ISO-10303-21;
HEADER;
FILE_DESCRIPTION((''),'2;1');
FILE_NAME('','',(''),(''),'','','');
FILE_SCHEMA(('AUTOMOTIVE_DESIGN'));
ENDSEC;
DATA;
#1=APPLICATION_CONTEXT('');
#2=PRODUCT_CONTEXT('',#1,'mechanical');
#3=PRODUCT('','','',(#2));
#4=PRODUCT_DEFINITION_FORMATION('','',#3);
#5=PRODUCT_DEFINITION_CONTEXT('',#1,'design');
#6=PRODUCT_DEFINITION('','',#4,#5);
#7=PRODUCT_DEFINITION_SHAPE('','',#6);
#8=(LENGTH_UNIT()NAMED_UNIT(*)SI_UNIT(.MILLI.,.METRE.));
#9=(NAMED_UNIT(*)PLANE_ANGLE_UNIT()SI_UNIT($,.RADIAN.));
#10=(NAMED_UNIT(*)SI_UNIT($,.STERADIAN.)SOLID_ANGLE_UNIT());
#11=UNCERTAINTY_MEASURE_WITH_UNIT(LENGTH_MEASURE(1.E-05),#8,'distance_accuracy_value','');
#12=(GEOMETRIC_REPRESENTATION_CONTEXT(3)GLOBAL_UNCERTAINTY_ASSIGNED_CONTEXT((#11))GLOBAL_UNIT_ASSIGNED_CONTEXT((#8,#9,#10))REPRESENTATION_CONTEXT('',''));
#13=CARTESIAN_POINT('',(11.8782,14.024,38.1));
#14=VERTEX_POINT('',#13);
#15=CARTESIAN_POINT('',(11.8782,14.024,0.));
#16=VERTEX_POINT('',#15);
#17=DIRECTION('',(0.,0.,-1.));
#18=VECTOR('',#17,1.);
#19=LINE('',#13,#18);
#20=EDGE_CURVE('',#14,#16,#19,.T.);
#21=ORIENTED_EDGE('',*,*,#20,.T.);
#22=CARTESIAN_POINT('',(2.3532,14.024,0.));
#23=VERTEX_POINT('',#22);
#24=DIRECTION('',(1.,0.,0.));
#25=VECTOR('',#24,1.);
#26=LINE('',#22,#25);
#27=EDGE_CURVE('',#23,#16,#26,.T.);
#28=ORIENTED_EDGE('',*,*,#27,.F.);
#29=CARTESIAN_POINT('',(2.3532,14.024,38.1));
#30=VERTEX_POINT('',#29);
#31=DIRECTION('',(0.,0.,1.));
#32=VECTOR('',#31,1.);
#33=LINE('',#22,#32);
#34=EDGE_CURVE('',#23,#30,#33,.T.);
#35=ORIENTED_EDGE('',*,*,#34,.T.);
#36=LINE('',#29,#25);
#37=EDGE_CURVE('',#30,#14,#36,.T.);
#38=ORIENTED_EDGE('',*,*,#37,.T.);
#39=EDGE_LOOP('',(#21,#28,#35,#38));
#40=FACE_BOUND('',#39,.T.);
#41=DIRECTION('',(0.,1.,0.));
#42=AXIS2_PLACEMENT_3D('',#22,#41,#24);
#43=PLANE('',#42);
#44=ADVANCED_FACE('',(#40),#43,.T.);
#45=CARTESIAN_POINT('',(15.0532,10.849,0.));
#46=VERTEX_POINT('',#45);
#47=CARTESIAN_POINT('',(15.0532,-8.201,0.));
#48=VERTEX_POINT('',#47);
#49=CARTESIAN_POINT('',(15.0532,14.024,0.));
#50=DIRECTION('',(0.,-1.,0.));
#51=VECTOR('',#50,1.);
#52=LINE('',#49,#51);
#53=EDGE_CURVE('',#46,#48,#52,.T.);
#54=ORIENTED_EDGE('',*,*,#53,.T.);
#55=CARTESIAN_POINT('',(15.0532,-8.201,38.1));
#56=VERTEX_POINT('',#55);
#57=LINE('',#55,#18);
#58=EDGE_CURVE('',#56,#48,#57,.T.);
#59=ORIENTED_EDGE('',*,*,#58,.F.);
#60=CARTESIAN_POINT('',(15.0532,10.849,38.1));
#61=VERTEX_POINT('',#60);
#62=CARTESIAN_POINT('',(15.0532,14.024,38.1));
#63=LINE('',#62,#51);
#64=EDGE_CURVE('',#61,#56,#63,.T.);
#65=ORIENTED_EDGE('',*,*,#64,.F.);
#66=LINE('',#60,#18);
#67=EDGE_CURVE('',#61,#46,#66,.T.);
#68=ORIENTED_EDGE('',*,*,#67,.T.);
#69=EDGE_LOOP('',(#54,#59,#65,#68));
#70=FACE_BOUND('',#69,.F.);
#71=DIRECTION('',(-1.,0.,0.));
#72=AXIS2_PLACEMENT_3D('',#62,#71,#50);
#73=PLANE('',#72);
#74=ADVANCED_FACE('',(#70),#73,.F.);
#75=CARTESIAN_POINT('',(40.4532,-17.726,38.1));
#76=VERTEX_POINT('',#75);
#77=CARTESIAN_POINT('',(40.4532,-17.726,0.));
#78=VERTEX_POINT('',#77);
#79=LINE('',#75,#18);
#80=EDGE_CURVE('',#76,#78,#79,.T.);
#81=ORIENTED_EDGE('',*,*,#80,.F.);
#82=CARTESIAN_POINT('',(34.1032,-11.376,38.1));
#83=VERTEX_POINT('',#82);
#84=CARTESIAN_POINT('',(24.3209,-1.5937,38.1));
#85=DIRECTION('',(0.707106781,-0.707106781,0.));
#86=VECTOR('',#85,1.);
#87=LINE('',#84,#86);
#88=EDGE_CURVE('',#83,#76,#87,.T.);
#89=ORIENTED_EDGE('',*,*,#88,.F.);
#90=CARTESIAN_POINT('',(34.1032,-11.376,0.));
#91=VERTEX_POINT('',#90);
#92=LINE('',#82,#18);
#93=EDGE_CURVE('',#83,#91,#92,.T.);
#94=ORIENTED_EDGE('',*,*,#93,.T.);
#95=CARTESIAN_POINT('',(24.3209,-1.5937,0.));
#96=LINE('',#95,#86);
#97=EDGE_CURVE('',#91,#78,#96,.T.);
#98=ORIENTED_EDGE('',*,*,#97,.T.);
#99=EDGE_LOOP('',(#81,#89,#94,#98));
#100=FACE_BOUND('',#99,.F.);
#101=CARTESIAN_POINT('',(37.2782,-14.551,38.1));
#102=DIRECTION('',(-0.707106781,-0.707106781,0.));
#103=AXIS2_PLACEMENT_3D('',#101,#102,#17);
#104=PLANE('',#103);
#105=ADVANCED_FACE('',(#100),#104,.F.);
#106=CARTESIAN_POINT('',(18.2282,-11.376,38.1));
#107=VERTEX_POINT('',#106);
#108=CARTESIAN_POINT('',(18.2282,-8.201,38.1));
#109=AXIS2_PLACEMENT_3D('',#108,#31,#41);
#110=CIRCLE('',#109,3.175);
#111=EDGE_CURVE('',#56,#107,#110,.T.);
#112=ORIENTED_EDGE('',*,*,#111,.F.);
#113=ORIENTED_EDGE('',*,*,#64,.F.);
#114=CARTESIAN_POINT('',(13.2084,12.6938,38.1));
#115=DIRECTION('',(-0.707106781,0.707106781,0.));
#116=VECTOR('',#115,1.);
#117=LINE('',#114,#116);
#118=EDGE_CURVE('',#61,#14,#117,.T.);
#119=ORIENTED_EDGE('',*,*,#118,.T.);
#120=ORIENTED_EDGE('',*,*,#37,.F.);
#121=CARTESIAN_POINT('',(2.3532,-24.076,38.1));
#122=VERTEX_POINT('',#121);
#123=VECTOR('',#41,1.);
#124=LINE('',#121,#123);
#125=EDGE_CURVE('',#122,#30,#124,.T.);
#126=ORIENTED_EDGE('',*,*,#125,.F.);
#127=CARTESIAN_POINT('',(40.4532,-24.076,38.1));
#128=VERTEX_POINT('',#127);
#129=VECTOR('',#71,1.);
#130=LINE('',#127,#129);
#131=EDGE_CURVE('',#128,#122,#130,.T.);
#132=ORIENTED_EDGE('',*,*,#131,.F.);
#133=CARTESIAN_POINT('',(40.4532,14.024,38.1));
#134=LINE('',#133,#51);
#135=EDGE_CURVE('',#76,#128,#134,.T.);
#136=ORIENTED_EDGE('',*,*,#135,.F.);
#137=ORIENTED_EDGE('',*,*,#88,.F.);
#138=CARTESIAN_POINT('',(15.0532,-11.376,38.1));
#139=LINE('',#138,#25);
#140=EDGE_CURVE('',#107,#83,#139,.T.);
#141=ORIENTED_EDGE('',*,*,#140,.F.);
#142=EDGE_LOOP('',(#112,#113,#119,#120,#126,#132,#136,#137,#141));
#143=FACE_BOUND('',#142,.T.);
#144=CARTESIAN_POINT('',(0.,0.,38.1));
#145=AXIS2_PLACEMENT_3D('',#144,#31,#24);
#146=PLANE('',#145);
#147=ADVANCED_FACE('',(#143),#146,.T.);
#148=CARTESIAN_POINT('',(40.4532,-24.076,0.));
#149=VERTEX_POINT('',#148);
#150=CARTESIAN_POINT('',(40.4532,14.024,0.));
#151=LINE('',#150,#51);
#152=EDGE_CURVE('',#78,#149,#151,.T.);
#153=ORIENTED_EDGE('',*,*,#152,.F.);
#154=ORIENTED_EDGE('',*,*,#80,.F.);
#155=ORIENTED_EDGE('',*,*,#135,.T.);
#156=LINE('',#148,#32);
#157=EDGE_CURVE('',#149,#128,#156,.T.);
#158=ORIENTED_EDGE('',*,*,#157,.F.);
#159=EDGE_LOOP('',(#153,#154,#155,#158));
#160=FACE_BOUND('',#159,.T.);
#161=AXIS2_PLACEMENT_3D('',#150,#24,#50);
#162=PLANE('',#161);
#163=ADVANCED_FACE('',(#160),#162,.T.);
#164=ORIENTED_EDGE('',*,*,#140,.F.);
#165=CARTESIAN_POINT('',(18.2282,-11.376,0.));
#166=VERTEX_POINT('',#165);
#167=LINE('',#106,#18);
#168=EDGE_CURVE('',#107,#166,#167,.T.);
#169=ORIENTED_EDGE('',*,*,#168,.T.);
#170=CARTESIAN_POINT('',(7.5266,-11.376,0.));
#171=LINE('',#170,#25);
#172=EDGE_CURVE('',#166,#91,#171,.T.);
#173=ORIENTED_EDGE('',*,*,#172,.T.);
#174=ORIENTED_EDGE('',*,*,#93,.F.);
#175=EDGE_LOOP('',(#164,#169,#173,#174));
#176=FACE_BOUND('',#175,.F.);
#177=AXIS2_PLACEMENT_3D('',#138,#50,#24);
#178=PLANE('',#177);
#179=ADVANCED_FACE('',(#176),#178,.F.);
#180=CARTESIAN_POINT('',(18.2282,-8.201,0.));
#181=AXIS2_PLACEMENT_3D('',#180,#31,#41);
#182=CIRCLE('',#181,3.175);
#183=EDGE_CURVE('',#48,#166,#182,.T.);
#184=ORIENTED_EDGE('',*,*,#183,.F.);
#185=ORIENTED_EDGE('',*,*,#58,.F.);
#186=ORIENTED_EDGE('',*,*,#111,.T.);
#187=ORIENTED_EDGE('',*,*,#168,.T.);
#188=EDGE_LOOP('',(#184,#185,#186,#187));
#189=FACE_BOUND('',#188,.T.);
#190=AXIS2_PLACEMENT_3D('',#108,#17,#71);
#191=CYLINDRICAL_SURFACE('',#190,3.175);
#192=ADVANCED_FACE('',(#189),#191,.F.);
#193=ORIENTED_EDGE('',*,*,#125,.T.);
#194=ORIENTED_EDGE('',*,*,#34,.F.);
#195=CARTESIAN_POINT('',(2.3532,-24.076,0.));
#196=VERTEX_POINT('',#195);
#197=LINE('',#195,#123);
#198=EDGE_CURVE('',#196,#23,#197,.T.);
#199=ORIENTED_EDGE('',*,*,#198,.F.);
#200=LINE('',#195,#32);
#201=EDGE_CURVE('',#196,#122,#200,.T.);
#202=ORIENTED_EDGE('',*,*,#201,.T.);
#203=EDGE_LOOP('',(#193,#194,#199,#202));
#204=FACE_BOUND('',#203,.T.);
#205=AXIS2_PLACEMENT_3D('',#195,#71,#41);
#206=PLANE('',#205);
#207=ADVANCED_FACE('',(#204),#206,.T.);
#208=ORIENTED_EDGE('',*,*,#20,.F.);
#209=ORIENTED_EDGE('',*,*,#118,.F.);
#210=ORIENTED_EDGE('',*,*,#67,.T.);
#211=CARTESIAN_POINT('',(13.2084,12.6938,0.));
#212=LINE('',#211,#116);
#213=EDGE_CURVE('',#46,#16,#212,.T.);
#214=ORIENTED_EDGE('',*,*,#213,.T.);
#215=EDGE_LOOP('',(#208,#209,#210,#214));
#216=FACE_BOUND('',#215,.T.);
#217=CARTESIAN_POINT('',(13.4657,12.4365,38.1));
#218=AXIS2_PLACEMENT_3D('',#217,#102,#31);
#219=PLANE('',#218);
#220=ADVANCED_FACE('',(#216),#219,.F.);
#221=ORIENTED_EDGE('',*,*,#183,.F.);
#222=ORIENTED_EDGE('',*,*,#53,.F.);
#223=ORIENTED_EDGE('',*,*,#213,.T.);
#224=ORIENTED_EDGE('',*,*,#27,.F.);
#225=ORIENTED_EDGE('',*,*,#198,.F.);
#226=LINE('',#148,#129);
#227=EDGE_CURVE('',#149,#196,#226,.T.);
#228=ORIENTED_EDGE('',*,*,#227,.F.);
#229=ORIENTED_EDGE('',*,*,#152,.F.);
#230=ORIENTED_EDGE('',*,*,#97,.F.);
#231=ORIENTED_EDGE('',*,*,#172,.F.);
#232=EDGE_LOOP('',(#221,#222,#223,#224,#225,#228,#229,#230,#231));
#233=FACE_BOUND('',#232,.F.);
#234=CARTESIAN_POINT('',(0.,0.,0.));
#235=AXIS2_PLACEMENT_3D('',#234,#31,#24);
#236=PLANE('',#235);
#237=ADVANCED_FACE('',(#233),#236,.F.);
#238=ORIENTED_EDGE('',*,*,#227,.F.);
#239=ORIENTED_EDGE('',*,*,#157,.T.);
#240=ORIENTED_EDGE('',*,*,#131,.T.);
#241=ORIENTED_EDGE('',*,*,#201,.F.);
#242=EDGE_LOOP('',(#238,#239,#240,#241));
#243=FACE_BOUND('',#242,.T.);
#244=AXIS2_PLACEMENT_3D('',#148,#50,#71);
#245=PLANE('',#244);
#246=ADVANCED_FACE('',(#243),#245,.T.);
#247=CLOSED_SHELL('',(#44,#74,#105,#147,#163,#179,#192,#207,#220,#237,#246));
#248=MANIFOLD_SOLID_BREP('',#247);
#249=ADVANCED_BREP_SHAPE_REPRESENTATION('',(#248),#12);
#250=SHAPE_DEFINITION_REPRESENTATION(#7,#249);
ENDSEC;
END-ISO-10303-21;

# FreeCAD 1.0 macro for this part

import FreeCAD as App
import Part
import Sketcher
Q = App.Units.Quantity


def edges_at(feature, points):
    """Names of the edges that pass closest to the given points."""
    edges = feature.Shape.Edges
    near = lambda p: min(range(len(edges)), key=lambda i: edges[i].distToShape(Part.Vertex(*p))[0])
    return sorted({f"Edge{near(p) + 1}" for p in points})


def add_polygon(sketch, points):
    """Adds a closed chain of lines whose ends are joined by coincident constraints."""
    first, n = sketch.GeometryCount, len(points)
    for a, b in zip(points, points[1:] + points[:1]):
        sketch.addGeometry(Part.LineSegment(App.Vector(*a, 0), App.Vector(*b, 0)), False)
    for i in range(n):
        sketch.addConstraint(Sketcher.Constraint("Coincident", first + i, 2, first + (i + 1) % n, 1))

doc = App.newDocument("Part")
params = doc.addObject("Spreadsheet::Sheet", "Params")
for row, (alias, value) in enumerate([
    ("sketch1_width", "1.5 in"),
    ("pad1_length", "1.5 in"),
    ("sketch2_width", "1 in"),
    ("fillet_radius", "0.125 in"),
    ("chamfer_size", "0.125 in"),
    ("chamfer2_size", "0.25 in"),
], start=1):
    params.set(f"A{row}", alias)
    params.set(f"B{row}", "=" + value)
    params.setAlias(f"B{row}", alias)

body = doc.addObject("PartDesign::Body", "Body")

# Sketch on XY plane
sketch1 = doc.addObject("Sketcher::SketchObject", "Sketch")
body.addObject(sketch1)
sketch1.AttachmentSupport = (doc.XY_Plane, [""])
sketch1.MapMode = "FlatFace"
add_polygon(sketch1, [(40.4532, 14.024), (2.3532, 14.024), (2.3532, -24.076), (40.4532, -24.076)])  # lines 0-3
sketch1.addConstraint(Sketcher.Constraint("Horizontal", 0))
sketch1.addConstraint(Sketcher.Constraint("Vertical", 1))
sketch1.addConstraint(Sketcher.Constraint("Horizontal", 2))
sketch1.addConstraint(Sketcher.Constraint("Vertical", 3))
sketch1.addConstraint(Sketcher.Constraint("Equal", 2, 1))
sketch1.addConstraint(Sketcher.Constraint("DistanceX", 0, 2, 0, 1, Q("1.5 in")))
sketch1.addConstraint(Sketcher.Constraint("DistanceX", -1, 1, 0, 2, Q("2.3532 mm")))
sketch1.addConstraint(Sketcher.Constraint("DistanceY", -1, 1, 0, 2, Q("14.024 mm")))
sketch1.setExpression("Constraints[9]", "Params.sketch1_width")
pad1 = doc.addObject("PartDesign::Pad", "Pad")
body.addObject(pad1)
pad1.Profile = sketch1
pad1.setExpression("Length", "Params.pad1_length")

# Sketch on XY plane
sketch2 = doc.addObject("Sketcher::SketchObject", "Sketch001")
body.addObject(sketch2)
sketch2.AttachmentSupport = (doc.XY_Plane, [""])
sketch2.MapMode = "FlatFace"
sketch2.AttachmentOffset = App.Placement(App.Vector(0, 0, 1.5 * 25.4), App.Rotation())
add_polygon(sketch2, [(40.4532, 14.024), (15.0532, 14.024), (15.0532, -11.376), (40.4532, -11.376)])  # lines 0-3
sketch2.addConstraint(Sketcher.Constraint("Horizontal", 0))
sketch2.addConstraint(Sketcher.Constraint("Vertical", 1))
sketch2.addConstraint(Sketcher.Constraint("Horizontal", 2))
sketch2.addConstraint(Sketcher.Constraint("Vertical", 3))
sketch2.addConstraint(Sketcher.Constraint("Equal", 2, 1))
sketch2.addConstraint(Sketcher.Constraint("DistanceX", 0, 2, 0, 1, Q("1 in")))
sketch2.addConstraint(Sketcher.Constraint("DistanceX", -1, 1, 0, 2, Q("15.0532 mm")))
sketch2.addConstraint(Sketcher.Constraint("DistanceY", -1, 1, 0, 2, Q("14.024 mm")))
sketch2.setExpression("Constraints[9]", "Params.sketch2_width")
pocket1 = doc.addObject("PartDesign::Pocket", "Pocket")
body.addObject(pocket1)
pocket1.Profile = sketch2
pocket1.Type = "ThroughAll"
doc.recompute()

fillet = doc.addObject("PartDesign::Fillet", "Fillet")
body.addObject(fillet)
fillet.Base = (pocket1, edges_at(pocket1, [(15.053, -11.376, 19.05)]))
fillet.setExpression("Radius", "Params.fillet_radius")
doc.recompute()

chamfer = doc.addObject("PartDesign::Chamfer", "Chamfer")
body.addObject(chamfer)
chamfer.Base = (fillet, edges_at(fillet, [(15.053, 14.024, 19.05)]))
chamfer.setExpression("Size", "Params.chamfer_size")
doc.recompute()

chamfer2 = doc.addObject("PartDesign::Chamfer", "Chamfer001")
body.addObject(chamfer2)
chamfer2.Base = (chamfer, edges_at(chamfer, [(40.453, -11.376, 19.05)]))
chamfer2.setExpression("Size", "Params.chamfer2_size")

doc.recompute()
